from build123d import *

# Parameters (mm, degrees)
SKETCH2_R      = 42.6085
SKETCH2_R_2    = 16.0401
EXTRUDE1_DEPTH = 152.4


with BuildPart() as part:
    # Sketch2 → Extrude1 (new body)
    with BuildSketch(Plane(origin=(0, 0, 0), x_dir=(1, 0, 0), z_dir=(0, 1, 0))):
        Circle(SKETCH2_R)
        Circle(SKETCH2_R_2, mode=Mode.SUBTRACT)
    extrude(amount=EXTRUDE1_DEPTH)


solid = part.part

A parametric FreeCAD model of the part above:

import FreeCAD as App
import Part
import Sketcher
Q = App.Units.Quantity

doc = App.newDocument("Part")
body = doc.addObject("PartDesign::Body", "Body")

# Sketch on XZ plane
sketch1 = body.newObject("Sketcher::SketchObject", "Sketch")
sketch1.AttachmentSupport = (doc.getObject("XZ_Plane"), [""])
sketch1.MapMode = "FlatFace"
sketch1.addGeometry([
    Part.Circle(App.Vector(0, 0, 0), App.Vector(0, 0, 1), 43),
    Part.Circle(App.Vector(0, 0, 0), App.Vector(0, 0, 1), 16),
], False)
sketch1.addConstraint([
    Sketcher.Constraint("Coincident", 0, 3, -1, 1),
    Sketcher.Constraint("Coincident", 1, 3, -1, 1),
    Sketcher.Constraint("Diameter", 0, Q("3.355 in")),
    Sketcher.Constraint("Diameter", 1, Q("1.263 in")),
])
pad1 = body.newObject("PartDesign::Pad", "Pad")
pad1.Profile = sketch1
pad1.Length = Q("6 in")
pad1.Reversed = True

doc.recompute()
